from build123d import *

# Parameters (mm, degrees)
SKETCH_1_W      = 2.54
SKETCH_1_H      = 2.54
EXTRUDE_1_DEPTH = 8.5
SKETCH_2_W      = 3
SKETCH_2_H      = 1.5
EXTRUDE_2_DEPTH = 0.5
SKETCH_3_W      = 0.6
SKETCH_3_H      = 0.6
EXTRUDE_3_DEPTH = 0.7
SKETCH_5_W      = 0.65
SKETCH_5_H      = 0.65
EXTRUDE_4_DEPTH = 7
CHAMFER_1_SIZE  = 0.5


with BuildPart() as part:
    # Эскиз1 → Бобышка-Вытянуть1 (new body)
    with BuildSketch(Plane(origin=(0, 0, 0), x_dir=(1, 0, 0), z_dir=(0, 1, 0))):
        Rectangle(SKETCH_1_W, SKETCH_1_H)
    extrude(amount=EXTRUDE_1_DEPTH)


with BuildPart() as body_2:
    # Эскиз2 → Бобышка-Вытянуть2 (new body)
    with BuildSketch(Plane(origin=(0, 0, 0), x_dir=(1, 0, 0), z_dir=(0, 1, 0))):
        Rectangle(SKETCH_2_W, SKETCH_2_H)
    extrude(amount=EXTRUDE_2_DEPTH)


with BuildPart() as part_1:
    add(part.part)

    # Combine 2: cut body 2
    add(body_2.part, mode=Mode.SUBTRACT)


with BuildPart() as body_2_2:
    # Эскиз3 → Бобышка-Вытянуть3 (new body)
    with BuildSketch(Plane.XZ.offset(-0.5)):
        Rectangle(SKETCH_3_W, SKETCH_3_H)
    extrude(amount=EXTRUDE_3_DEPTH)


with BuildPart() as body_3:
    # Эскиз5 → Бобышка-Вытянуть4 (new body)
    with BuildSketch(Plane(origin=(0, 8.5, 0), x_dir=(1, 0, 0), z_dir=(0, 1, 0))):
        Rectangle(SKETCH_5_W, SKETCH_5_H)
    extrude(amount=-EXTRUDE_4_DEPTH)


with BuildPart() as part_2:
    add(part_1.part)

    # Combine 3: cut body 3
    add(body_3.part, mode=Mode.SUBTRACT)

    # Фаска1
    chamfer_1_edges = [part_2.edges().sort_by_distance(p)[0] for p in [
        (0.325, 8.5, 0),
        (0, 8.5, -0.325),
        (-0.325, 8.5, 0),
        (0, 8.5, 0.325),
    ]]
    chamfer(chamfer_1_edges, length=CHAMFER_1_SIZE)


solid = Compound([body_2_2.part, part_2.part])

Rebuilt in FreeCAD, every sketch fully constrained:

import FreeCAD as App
import Part
import Sketcher


def edges_at(feature, points):
    """Names of the edges that pass closest to the given points."""
    edges = feature.Shape.Edges
    near = lambda p: min(range(len(edges)), key=lambda i: edges[i].distToShape(Part.Vertex(*p))[0])
    return sorted({f"Edge{near(p) + 1}" for p in points})


def add_polygon(sketch, points):
    """Adds a closed chain of lines whose ends are joined by coincident constraints."""
    first, n = sketch.GeometryCount, len(points)
    for a, b in zip(points, points[1:] + points[:1]):
        sketch.addGeometry(Part.LineSegment(App.Vector(*a, 0), App.Vector(*b, 0)), False)
    for i in range(n):
        sketch.addConstraint(Sketcher.Constraint("Coincident", first + i, 2, first + (i + 1) % n, 1))

doc = App.newDocument("Part")
body = doc.addObject("PartDesign::Body", "Body")

# Sketch on XZ plane
sketch1 = doc.addObject("Sketcher::SketchObject", "Sketch")
body.addObject(sketch1)
sketch1.AttachmentSupport = (doc.XZ_Plane, [""])
sketch1.MapMode = "FlatFace"
add_polygon(sketch1, [(-1.27, -1.27), (-1.27, 1.27), (1.27, 1.27), (1.27, -1.27)])  # lines 0-3
sketch1.addConstraint([
    Sketcher.Constraint("Vertical", 0),
    Sketcher.Constraint("Horizontal", 1),
    Sketcher.Constraint("Vertical", 2),
    Sketcher.Constraint("Horizontal", 3),
    Sketcher.Constraint("Symmetric", 0, 2, 2, 2, -1, 1),
    Sketcher.Constraint("Equal", 3, 0),
    Sketcher.Constraint("DistanceX", 1, 1, 1, 2, 2.54),
])
pad1 = doc.addObject("PartDesign::Pad", "Pad")
body.addObject(pad1)
pad1.Profile = sketch1
pad1.Length = 8.5
pad1.Reversed = True
body2 = doc.addObject("PartDesign::Body", "Body001")

# Sketch on XZ plane
sketch2 = doc.addObject("Sketcher::SketchObject", "Sketch001")
body2.addObject(sketch2)
sketch2.AttachmentSupport = (doc.getObject("XZ_Plane001"), [""])
sketch2.MapMode = "FlatFace"
add_polygon(sketch2, [(-1.5, -0.75), (-1.5, 0.75), (1.5, 0.75), (1.5, -0.75)])  # lines 0-3
sketch2.addConstraint([
    Sketcher.Constraint("Vertical", 0),
    Sketcher.Constraint("Horizontal", 1),
    Sketcher.Constraint("Vertical", 2),
    Sketcher.Constraint("Horizontal", 3),
    Sketcher.Constraint("Symmetric", 0, 2, 2, 2, -1, 1),
    Sketcher.Constraint("DistanceX", 1, 1, 1, 2, 3.0),
    Sketcher.Constraint("DistanceY", 0, 1, 0, 2, 1.5),
])
pad2 = doc.addObject("PartDesign::Pad", "Pad001")
body2.addObject(pad2)
pad2.Profile = sketch2
pad2.Length = 0.5
pad2.Reversed = True
doc.recompute()

boolean = doc.addObject("PartDesign::Boolean", "Boolean")
body.addObject(boolean)
boolean.Type = "Cut"
boolean.addObjects([body2])
body3 = doc.addObject("PartDesign::Body", "Body002")

# Sketch on XZ plane
sketch3 = doc.addObject("Sketcher::SketchObject", "Sketch002")
body3.addObject(sketch3)
sketch3.AttachmentSupport = (doc.getObject("XZ_Plane002"), [""])
sketch3.MapMode = "FlatFace"
sketch3.AttachmentOffset = App.Placement(App.Vector(0, 0, -0.5), App.Rotation())
add_polygon(sketch3, [(-0.3, 0.3), (-0.3, -0.3), (0.3, -0.3), (0.3, 0.3)])  # lines 0-3
sketch3.addConstraint([
    Sketcher.Constraint("Vertical", 0),
    Sketcher.Constraint("Horizontal", 1),
    Sketcher.Constraint("Vertical", 2),
    Sketcher.Constraint("Horizontal", 3),
    Sketcher.Constraint("Symmetric", 0, 2, 2, 2, -1, 1),
    Sketcher.Constraint("Equal", 3, 0),
    Sketcher.Constraint("DistanceX", 1, 1, 1, 2, 0.6),
])
pad3 = doc.addObject("PartDesign::Pad", "Pad002")
body3.addObject(pad3)
pad3.Profile = sketch3
pad3.Length = 0.7
body4 = doc.addObject("PartDesign::Body", "Body003")

# Sketch on XZ plane
sketch4 = doc.addObject("Sketcher::SketchObject", "Sketch003")
body4.addObject(sketch4)
sketch4.AttachmentSupport = (doc.getObject("XZ_Plane003"), [""])
sketch4.MapMode = "FlatFace"
sketch4.AttachmentOffset = App.Placement(App.Vector(0, 0, -8.5), App.Rotation())
add_polygon(sketch4, [(-0.325, -0.325), (-0.325, 0.325), (0.325, 0.325), (0.325, -0.325)])  # lines 0-3
sketch4.addConstraint([
    Sketcher.Constraint("Vertical", 0),
    Sketcher.Constraint("Horizontal", 1),
    Sketcher.Constraint("Vertical", 2),
    Sketcher.Constraint("Horizontal", 3),
    Sketcher.Constraint("Symmetric", 0, 2, 2, 2, -1, 1),
    Sketcher.Constraint("Equal", 3, 0),
    Sketcher.Constraint("DistanceX", 1, 1, 1, 2, 0.65),
])
pad4 = doc.addObject("PartDesign::Pad", "Pad003")
body4.addObject(pad4)
pad4.Profile = sketch4
pad4.Length = 7
doc.recompute()

boolean2 = doc.addObject("PartDesign::Boolean", "Boolean001")
body.addObject(boolean2)
boolean2.Type = "Cut"
boolean2.addObjects([body4])
doc.recompute()

chamfer = doc.addObject("PartDesign::Chamfer", "Chamfer")
body.addObject(chamfer)
chamfer.Base = (boolean2, edges_at(boolean2, [
    (0.325, 8.5, 0),
    (0, 8.5, -0.325),
    (-0.325, 8.5, 0),
    (0, 8.5, 0.325),
]))
chamfer.Size = 0.5

doc.recompute()
